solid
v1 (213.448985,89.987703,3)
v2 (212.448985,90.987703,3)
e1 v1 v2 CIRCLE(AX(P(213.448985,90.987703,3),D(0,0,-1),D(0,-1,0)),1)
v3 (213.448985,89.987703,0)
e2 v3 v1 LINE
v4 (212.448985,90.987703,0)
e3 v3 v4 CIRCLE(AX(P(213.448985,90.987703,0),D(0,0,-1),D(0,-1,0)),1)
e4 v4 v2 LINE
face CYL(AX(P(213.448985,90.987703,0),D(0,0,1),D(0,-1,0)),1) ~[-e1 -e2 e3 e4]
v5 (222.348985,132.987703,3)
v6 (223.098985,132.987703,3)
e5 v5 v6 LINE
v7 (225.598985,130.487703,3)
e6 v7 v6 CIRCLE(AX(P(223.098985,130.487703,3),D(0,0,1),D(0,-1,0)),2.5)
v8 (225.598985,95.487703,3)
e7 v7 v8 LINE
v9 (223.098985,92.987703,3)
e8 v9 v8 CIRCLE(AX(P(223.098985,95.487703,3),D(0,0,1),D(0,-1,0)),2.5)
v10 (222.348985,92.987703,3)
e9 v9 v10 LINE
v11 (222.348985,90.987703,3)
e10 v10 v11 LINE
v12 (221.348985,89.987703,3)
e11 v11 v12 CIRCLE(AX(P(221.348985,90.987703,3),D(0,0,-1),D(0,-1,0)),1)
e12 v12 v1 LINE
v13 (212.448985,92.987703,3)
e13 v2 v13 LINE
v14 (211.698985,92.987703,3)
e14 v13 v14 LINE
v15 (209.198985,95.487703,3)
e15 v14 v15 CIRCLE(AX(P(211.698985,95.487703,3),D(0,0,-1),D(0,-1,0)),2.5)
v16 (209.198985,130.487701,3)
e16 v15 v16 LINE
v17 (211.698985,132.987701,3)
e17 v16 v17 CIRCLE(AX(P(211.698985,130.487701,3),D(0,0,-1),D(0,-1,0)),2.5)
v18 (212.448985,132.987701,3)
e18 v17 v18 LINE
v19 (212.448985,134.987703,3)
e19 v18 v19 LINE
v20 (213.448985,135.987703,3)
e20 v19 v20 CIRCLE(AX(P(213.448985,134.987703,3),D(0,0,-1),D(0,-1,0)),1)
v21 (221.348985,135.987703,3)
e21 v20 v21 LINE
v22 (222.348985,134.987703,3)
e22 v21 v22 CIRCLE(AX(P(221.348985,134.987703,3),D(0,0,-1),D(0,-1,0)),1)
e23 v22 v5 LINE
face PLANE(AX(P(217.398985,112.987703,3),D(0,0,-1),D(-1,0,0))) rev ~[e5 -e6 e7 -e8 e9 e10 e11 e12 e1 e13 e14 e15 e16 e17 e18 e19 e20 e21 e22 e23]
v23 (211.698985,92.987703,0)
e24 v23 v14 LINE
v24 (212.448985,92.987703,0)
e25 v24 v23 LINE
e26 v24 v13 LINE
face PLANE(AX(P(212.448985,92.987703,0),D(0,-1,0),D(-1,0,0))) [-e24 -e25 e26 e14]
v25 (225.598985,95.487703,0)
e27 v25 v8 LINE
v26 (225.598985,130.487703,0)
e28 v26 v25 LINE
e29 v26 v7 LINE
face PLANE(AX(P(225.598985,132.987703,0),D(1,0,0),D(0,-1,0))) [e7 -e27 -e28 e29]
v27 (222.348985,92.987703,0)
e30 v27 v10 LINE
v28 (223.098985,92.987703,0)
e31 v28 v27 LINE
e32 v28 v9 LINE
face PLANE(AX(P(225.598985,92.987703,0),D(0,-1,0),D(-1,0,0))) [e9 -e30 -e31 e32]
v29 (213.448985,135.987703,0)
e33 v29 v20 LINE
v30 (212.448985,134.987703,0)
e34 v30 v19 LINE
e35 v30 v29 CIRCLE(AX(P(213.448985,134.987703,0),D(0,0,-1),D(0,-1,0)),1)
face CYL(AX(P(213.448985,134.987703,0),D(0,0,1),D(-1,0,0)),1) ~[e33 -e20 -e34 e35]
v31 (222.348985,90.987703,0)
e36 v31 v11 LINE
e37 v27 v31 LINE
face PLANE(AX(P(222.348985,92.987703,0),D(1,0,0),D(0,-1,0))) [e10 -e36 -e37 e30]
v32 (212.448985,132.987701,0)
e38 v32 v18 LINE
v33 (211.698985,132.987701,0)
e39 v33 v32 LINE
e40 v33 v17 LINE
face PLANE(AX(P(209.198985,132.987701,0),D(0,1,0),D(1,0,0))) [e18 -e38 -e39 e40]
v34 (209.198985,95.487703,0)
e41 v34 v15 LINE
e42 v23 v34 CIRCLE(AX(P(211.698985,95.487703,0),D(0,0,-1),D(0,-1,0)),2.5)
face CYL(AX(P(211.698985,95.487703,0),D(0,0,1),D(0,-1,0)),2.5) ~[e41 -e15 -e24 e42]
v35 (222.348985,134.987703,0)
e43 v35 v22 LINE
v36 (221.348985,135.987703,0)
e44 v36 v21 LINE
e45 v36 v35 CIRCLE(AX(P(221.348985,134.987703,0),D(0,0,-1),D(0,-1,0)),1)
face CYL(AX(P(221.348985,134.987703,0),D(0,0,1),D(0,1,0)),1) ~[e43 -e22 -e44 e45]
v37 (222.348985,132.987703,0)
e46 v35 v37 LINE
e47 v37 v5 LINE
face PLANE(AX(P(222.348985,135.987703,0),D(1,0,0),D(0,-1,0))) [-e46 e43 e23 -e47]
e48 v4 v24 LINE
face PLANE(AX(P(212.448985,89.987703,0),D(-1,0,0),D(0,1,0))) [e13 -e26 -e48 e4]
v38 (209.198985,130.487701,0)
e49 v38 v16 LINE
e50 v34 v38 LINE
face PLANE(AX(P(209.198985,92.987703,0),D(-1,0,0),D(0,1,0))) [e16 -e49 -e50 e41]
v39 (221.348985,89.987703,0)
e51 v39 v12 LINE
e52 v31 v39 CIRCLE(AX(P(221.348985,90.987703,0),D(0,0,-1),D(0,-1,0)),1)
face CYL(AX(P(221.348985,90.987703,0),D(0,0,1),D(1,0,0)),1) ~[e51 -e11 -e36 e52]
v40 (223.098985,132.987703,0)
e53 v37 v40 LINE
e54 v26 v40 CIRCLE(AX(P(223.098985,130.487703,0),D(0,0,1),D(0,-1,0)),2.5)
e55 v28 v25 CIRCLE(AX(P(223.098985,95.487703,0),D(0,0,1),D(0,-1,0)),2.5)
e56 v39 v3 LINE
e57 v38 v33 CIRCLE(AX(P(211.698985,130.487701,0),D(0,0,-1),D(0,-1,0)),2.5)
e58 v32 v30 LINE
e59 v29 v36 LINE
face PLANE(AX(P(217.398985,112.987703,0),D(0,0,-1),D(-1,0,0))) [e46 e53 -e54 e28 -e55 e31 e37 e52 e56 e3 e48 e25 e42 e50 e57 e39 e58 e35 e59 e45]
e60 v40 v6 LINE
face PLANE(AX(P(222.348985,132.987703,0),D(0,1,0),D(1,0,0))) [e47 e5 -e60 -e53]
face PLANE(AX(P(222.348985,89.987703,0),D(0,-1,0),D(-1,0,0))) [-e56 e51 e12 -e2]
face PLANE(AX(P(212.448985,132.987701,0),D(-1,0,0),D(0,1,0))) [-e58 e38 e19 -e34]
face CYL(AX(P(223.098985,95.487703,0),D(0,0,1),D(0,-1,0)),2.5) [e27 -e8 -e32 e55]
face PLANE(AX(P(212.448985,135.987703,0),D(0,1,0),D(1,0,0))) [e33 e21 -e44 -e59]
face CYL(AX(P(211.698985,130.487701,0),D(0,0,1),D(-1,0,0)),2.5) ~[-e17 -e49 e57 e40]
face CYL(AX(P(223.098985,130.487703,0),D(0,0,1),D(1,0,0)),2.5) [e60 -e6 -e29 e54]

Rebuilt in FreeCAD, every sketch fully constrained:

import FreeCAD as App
import Part
import Sketcher
from FreeCAD import Vector
Q = App.Units.Quantity


def edges_at(feature, points):
    """Names of the edges that pass closest to the given points."""
    edges = feature.Shape.Edges
    near = lambda p: min(range(len(edges)), key=lambda i: edges[i].distToShape(Part.Vertex(*p))[0])
    return sorted({f"Edge{near(p) + 1}" for p in points})


def add_polygon(sketch, points):
    """Adds a closed chain of lines whose ends are joined by coincident constraints."""
    first, n = sketch.GeometryCount, len(points)
    for a, b in zip(points, points[1:] + points[:1]):
        sketch.addGeometry(Part.LineSegment(App.Vector(*a, 0), App.Vector(*b, 0)), False)
    for i in range(n):
        sketch.addConstraint(Sketcher.Constraint("Coincident", first + i, 2, first + (i + 1) % n, 1))

doc = App.newDocument("Part")
body = doc.addObject("PartDesign::Body", "Body")

# Sketch on XY plane
sketch1 = body.newObject("Sketcher::SketchObject", "Sketch")
sketch1.AttachmentSupport = (doc.getObject("XY_Plane"), [""])
sketch1.MapMode = "FlatFace"
add_polygon(sketch1, [(25.598985, -7.012297), (25.598985, 32.987703), (22.348985, 32.987703), (22.348985, 35.987703), (12.448985, 35.987703), (12.448985, 32.987701), (9.198985, 32.987701), (9.198985, -7.012297), (12.448985, -7.012297), (12.448985, -10.012297), (22.348985, -10.012297), (22.348985, -7.012297)])  # lines 0-11
sketch1.addConstraint([
    Sketcher.Constraint("Vertical", 0),
    Sketcher.Constraint("Horizontal", 1),
    Sketcher.Constraint("Vertical", 2),
    Sketcher.Constraint("Horizontal", 3),
    Sketcher.Constraint("Vertical", 4),
    Sketcher.Constraint("Horizontal", 5),
    Sketcher.Constraint("Vertical", 6),
    Sketcher.Constraint("Horizontal", 7),
    Sketcher.Constraint("Vertical", 8),
    Sketcher.Constraint("Horizontal", 9),
    Sketcher.Constraint("Vertical", 10),
    Sketcher.Constraint("Horizontal", 11),
    Sketcher.Constraint("Horizontal", 7, 2, 10, 2),
    Sketcher.Constraint("Vertical", 4, 2, 7, 2),
    Sketcher.Constraint("Vertical", 2, 2, 9, 2),
    Sketcher.Constraint("Equal", 1, 5),
    Sketcher.Constraint("Equal", 0, 6),
    Sketcher.Constraint("Equal", 2, 8),
    Sketcher.Constraint("DistanceY", 0, 1, 0, 2, Q("40 mm")),
    Sketcher.Constraint("DistanceY", 2, 1, 2, 2, Q("3 mm")),
    Sketcher.Constraint("DistanceX", 3, 2, 3, 1, Q("9.9 mm")),
    Sketcher.Constraint("DistanceX", 1, 2, 1, 1, Q("3.25 mm")),
    Sketcher.Constraint("DistanceY", -1, 1, 4, 2, Q("32.987701 mm")),
    Sketcher.Constraint("DistanceX", -1, 1, 0, 2, Q("25.598985 mm")),
])
pad1 = body.newObject("PartDesign::Pad", "Pad")
pad1.Profile = sketch1
pad1.Length = 3
doc.recompute()

fillet = body.newObject("PartDesign::Fillet", "Fillet")
fillet.Base = (pad1, edges_at(pad1, [
    (22.349, -10.012, 1.5),
    (12.449, -10.012, 1.5),
    (22.349, 35.988, 1.5),
    (12.449, 35.988, 1.5),
]))
fillet.Radius = 1
doc.recompute()

fillet2 = body.newObject("PartDesign::Fillet", "Fillet001")
fillet2.Base = (fillet, edges_at(fillet, [
    (25.599, -7.012, 1.5),
    (25.599, 32.988, 1.5),
    (9.199, -7.012, 1.5),
    (9.199, 32.988, 1.5),
]))
fillet2.Radius = 2.5
body2 = doc.addObject("PartDesign::Body", "Body001")
doc.recompute()

body.Placement = App.Placement(Vector(200, 100, 0), App.Rotation(Vector(0, 0, 1), 0))
boolean = body2.newObject("PartDesign::Boolean", "Boolean")
boolean.Type = "Fuse"
boolean.addObjects([body])

doc.recompute()
